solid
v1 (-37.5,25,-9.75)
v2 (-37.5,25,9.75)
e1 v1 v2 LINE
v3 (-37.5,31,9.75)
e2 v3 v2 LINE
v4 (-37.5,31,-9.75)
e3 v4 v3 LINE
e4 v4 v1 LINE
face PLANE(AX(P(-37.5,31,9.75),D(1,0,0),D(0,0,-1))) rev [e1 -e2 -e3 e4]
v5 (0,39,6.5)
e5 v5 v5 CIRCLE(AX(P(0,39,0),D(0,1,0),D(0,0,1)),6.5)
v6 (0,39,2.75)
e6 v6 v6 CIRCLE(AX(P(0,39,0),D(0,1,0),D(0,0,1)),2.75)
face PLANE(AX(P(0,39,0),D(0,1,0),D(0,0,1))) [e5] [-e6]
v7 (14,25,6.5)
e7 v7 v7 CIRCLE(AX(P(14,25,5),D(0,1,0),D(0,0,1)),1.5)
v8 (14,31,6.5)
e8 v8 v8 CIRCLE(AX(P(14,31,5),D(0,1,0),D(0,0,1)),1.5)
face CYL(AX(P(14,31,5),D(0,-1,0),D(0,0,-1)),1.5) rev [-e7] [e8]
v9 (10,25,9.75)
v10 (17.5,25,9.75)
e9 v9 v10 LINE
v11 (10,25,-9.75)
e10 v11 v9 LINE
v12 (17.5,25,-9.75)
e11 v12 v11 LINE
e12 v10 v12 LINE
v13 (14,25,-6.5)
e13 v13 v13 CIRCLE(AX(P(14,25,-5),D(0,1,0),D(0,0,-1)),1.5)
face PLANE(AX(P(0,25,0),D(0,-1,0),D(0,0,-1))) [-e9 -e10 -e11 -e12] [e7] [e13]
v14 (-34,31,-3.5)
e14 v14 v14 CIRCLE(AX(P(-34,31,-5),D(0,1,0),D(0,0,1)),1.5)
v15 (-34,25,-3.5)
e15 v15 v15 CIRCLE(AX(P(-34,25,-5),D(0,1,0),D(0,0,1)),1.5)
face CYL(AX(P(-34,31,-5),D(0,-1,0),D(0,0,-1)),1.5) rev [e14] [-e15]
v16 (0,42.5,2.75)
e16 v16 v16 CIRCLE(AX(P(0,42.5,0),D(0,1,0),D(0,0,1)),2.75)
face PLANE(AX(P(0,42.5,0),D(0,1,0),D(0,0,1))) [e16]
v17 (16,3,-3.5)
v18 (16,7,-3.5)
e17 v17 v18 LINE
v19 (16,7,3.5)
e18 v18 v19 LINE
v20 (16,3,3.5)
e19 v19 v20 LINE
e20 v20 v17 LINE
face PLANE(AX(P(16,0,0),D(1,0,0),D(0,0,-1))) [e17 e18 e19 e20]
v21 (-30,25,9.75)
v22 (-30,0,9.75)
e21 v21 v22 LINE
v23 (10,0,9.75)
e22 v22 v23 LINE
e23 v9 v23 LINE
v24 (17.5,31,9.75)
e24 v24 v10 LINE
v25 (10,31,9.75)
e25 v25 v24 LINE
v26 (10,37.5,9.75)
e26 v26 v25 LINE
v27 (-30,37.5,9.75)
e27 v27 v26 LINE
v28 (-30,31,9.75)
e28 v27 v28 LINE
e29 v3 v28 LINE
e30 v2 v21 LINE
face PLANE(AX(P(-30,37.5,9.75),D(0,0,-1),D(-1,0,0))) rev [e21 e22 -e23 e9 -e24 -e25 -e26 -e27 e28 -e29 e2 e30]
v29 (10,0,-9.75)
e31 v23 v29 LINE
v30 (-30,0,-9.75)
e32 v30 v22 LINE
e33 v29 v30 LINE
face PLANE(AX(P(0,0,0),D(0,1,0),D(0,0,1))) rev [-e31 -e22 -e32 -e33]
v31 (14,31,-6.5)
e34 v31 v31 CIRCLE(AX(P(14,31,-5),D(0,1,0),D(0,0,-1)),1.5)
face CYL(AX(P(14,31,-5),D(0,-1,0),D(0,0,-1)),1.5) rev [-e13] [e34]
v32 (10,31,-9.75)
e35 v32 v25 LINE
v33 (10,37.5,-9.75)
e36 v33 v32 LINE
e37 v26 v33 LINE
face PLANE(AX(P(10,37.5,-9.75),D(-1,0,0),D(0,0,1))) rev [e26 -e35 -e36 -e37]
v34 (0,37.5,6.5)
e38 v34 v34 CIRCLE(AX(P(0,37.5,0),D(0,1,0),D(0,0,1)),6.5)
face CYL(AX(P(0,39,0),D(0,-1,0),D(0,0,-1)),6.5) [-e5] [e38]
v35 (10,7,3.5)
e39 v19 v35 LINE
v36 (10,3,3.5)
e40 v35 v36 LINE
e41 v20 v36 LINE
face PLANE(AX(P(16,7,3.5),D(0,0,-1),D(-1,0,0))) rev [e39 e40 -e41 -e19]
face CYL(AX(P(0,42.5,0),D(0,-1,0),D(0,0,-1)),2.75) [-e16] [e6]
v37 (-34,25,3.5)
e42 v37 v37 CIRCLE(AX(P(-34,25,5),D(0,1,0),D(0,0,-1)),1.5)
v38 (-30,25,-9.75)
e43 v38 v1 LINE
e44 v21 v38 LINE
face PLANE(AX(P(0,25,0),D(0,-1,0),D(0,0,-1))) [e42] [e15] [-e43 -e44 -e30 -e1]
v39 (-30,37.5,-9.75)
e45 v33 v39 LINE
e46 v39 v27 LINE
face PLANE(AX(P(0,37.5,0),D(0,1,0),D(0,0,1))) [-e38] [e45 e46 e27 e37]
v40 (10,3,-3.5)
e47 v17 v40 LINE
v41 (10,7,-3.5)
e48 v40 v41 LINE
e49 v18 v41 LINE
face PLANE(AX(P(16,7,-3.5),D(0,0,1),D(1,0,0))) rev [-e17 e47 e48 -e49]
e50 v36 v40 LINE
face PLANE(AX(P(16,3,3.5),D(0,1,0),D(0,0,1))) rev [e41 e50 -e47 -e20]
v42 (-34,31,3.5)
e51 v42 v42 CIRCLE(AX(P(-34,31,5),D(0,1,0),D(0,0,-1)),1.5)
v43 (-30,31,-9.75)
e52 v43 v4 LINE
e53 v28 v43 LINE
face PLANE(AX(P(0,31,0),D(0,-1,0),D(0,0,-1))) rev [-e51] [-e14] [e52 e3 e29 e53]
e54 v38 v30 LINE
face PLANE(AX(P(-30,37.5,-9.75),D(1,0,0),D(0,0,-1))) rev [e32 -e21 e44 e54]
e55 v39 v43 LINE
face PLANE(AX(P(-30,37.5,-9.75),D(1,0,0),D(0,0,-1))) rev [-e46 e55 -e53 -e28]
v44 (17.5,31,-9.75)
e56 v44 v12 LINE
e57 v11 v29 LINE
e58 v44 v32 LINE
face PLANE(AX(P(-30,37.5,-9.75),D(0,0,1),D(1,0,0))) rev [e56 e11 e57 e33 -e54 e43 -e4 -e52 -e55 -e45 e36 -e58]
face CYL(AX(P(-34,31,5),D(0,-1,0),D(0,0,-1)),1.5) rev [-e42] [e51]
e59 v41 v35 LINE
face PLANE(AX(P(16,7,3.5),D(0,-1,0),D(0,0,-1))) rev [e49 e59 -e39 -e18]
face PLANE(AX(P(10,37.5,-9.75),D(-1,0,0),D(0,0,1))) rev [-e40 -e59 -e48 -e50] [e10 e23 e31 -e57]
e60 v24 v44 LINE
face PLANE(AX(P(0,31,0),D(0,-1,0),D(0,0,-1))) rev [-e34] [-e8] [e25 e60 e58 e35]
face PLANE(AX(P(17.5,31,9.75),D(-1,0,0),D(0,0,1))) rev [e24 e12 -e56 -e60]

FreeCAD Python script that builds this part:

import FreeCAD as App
import Part
import Sketcher
Q = App.Units.Quantity

doc = App.newDocument("Part")
body = doc.addObject("PartDesign::Body", "Body")

# Sketch on XZ plane
sketch1 = doc.addObject("Sketcher::SketchObject", "Sketch")
body.addObject(sketch1)
sketch1.AttachmentSupport = (doc.XZ_Plane, [""])
sketch1.MapMode = "FlatFace"
sketch1.addGeometry([
    Part.LineSegment(App.Vector(-30, -9.75, 0), App.Vector(-30, 9.75, 0)),
    Part.LineSegment(App.Vector(-30, 9.75, 0), App.Vector(10, 9.75, 0)),
    Part.LineSegment(App.Vector(10, 9.75, 0), App.Vector(10, -9.75, 0)),
    Part.LineSegment(App.Vector(10, -9.75, 0), App.Vector(-30, -9.75, 0)),
], False)
sketch1.addConstraint([
    Sketcher.Constraint("Coincident", 0, 2, 1, 1),
    Sketcher.Constraint("Coincident", 1, 2, 2, 1),
    Sketcher.Constraint("Coincident", 2, 2, 3, 1),
    Sketcher.Constraint("Coincident", 3, 2, 0, 1),
    Sketcher.Constraint("Vertical", 0),
    Sketcher.Constraint("Horizontal", 1),
    Sketcher.Constraint("Vertical", 2),
    Sketcher.Constraint("Horizontal", 3),
    Sketcher.Constraint("DistanceX", 1, 1, 1, 2, Q("40 mm")),
    Sketcher.Constraint("DistanceY", 0, 1, 0, 2, Q("19.5 mm")),
    Sketcher.Constraint("DistanceX", 0, 2, -1, 1, Q("30 mm")),
    Sketcher.Constraint("DistanceY", -1, 1, 0, 2, Q("9.75 mm")),
])
pad1 = doc.addObject("PartDesign::Pad", "Pad")
body.addObject(pad1)
pad1.Profile = sketch1
pad1.Length = 37.5
pad1.Reversed = True

# Sketch on XZ plane
sketch2 = doc.addObject("Sketcher::SketchObject", "Sketch001")
body.addObject(sketch2)
sketch2.AttachmentSupport = (doc.XZ_Plane, [""])
sketch2.MapMode = "FlatFace"
sketch2.AttachmentOffset = App.Placement(App.Vector(0, 0, -37.5), App.Rotation())
sketch2.addGeometry(Part.Circle(App.Vector(0, 0, 0), App.Vector(0, 0, 1), 6.5), False)
sketch2.addConstraint([
    Sketcher.Constraint("Coincident", 0, 3, -1, 1),
    Sketcher.Constraint("Diameter", 0, Q("13 mm")),
])
pad2 = doc.addObject("PartDesign::Pad", "Pad001")
body.addObject(pad2)
pad2.Profile = sketch2
pad2.Length = 1.5
pad2.Reversed = True

# Sketch on XZ plane
sketch3 = doc.addObject("Sketcher::SketchObject", "Sketch002")
body.addObject(sketch3)
sketch3.AttachmentSupport = (doc.XZ_Plane, [""])
sketch3.MapMode = "FlatFace"
sketch3.AttachmentOffset = App.Placement(App.Vector(0, 0, -39), App.Rotation())
sketch3.addGeometry(Part.Circle(App.Vector(0, 0, 0), App.Vector(0, 0, 1), 2.75), False)
sketch3.addConstraint([
    Sketcher.Constraint("Coincident", 0, 3, -1, 1),
    Sketcher.Constraint("Diameter", 0, Q("5.5 mm")),
])
pad3 = doc.addObject("PartDesign::Pad", "Pad002")
body.addObject(pad3)
pad3.Profile = sketch3
pad3.Length = 3.5
pad3.Reversed = True

# Sketch on XZ plane
sketch4 = doc.addObject("Sketcher::SketchObject", "Sketch003")
body.addObject(sketch4)
sketch4.AttachmentSupport = (doc.XZ_Plane, [""])
sketch4.MapMode = "FlatFace"
sketch4.AttachmentOffset = App.Placement(App.Vector(0, 0, -25), App.Rotation())
sketch4.addGeometry([
    Part.LineSegment(App.Vector(-37.5, -9.75, 0), App.Vector(-37.5, 9.75, 0)),  # 0
    Part.LineSegment(App.Vector(-37.5, 9.75, 0), App.Vector(17.5, 9.75, 0)),  # 1
    Part.LineSegment(App.Vector(17.5, 9.75, 0), App.Vector(17.5, -9.75, 0)),  # 2
    Part.LineSegment(App.Vector(17.5, -9.75, 0), App.Vector(-37.5, -9.75, 0)),  # 3
    Part.Circle(App.Vector(-34, 5, 0), App.Vector(0, 0, 1), 1.5),  # 4
    Part.Circle(App.Vector(14, 5, 0), App.Vector(0, 0, 1), 1.5),  # 5
    Part.Circle(App.Vector(-34, -5, 0), App.Vector(0, 0, 1), 1.5),  # 6
    Part.Circle(App.Vector(14, -5, 0), App.Vector(0, 0, 1), 1.5),  # 7
], False)
sketch4.addConstraint([
    Sketcher.Constraint("Coincident", 0, 2, 1, 1),
    Sketcher.Constraint("Coincident", 1, 2, 2, 1),
    Sketcher.Constraint("Coincident", 2, 2, 3, 1),
    Sketcher.Constraint("Coincident", 3, 2, 0, 1),
    Sketcher.Constraint("Vertical", 0),
    Sketcher.Constraint("Horizontal", 1),
    Sketcher.Constraint("Vertical", 2),
    Sketcher.Constraint("Horizontal", 3),
    Sketcher.Constraint("Equal", 4, 5),
    Sketcher.Constraint("Equal", 5, 6),
    Sketcher.Constraint("Equal", 6, 7),
    Sketcher.Constraint("Symmetric", 4, 3, 6, 3, -1),
    Sketcher.Constraint("Symmetric", 5, 3, 7, 3, -1),
    Sketcher.Constraint("Horizontal", 4, 3, 5, 3),
    Sketcher.Constraint("Diameter", 4, Q("3 mm")),
    Sketcher.Constraint("DistanceX", 1, 1, 1, 2, Q("55 mm")),
    Sketcher.Constraint("DistanceY", 0, 1, 0, 2, Q("19.5 mm")),
    Sketcher.Constraint("DistanceX", 4, 3, -1, 1, Q("34 mm")),
    Sketcher.Constraint("DistanceY", -1, 1, 4, 3, Q("5 mm")),
    Sketcher.Constraint("DistanceX", -1, 1, 5, 3, Q("14 mm")),
    Sketcher.Constraint("DistanceX", 0, 2, -1, 1, Q("37.5 mm")),
    Sketcher.Constraint("DistanceY", -1, 1, 0, 2, Q("9.75 mm")),
])
pad4 = doc.addObject("PartDesign::Pad", "Pad003")
body.addObject(pad4)
pad4.Profile = sketch4
pad4.Length = 6
pad4.Reversed = True

# Sketch on YZ plane
sketch5 = doc.addObject("Sketcher::SketchObject", "Sketch004")
body.addObject(sketch5)
sketch5.AttachmentSupport = (doc.YZ_Plane, [""])
sketch5.MapMode = "FlatFace"
sketch5.AttachmentOffset = App.Placement(App.Vector(0, 0, 10), App.Rotation())
sketch5.addGeometry([
    Part.LineSegment(App.Vector(7, 3.5, 0), App.Vector(3, 3.5, 0)),
    Part.LineSegment(App.Vector(3, 3.5, 0), App.Vector(3, -3.5, 0)),
    Part.LineSegment(App.Vector(3, -3.5, 0), App.Vector(7, -3.5, 0)),
    Part.LineSegment(App.Vector(7, -3.5, 0), App.Vector(7, 3.5, 0)),
], False)
sketch5.addConstraint([
    Sketcher.Constraint("Coincident", 0, 2, 1, 1),
    Sketcher.Constraint("Coincident", 1, 2, 2, 1),
    Sketcher.Constraint("Coincident", 2, 2, 3, 1),
    Sketcher.Constraint("Coincident", 3, 2, 0, 1),
    Sketcher.Constraint("Horizontal", 0),
    Sketcher.Constraint("Vertical", 1),
    Sketcher.Constraint("Horizontal", 2),
    Sketcher.Constraint("Vertical", 3),
    Sketcher.Constraint("DistanceX", 0, 2, 0, 1, Q("4 mm")),
    Sketcher.Constraint("DistanceY", 1, 2, 1, 1, Q("7 mm")),
    Sketcher.Constraint("DistanceX", -1, 1, 0, 2, Q("3 mm")),
    Sketcher.Constraint("DistanceY", -1, 1, 0, 2, Q("3.5 mm")),
])
pad5 = doc.addObject("PartDesign::Pad", "Pad004")
body.addObject(pad5)
pad5.Profile = sketch5
pad5.Length = 6

doc.recompute()
